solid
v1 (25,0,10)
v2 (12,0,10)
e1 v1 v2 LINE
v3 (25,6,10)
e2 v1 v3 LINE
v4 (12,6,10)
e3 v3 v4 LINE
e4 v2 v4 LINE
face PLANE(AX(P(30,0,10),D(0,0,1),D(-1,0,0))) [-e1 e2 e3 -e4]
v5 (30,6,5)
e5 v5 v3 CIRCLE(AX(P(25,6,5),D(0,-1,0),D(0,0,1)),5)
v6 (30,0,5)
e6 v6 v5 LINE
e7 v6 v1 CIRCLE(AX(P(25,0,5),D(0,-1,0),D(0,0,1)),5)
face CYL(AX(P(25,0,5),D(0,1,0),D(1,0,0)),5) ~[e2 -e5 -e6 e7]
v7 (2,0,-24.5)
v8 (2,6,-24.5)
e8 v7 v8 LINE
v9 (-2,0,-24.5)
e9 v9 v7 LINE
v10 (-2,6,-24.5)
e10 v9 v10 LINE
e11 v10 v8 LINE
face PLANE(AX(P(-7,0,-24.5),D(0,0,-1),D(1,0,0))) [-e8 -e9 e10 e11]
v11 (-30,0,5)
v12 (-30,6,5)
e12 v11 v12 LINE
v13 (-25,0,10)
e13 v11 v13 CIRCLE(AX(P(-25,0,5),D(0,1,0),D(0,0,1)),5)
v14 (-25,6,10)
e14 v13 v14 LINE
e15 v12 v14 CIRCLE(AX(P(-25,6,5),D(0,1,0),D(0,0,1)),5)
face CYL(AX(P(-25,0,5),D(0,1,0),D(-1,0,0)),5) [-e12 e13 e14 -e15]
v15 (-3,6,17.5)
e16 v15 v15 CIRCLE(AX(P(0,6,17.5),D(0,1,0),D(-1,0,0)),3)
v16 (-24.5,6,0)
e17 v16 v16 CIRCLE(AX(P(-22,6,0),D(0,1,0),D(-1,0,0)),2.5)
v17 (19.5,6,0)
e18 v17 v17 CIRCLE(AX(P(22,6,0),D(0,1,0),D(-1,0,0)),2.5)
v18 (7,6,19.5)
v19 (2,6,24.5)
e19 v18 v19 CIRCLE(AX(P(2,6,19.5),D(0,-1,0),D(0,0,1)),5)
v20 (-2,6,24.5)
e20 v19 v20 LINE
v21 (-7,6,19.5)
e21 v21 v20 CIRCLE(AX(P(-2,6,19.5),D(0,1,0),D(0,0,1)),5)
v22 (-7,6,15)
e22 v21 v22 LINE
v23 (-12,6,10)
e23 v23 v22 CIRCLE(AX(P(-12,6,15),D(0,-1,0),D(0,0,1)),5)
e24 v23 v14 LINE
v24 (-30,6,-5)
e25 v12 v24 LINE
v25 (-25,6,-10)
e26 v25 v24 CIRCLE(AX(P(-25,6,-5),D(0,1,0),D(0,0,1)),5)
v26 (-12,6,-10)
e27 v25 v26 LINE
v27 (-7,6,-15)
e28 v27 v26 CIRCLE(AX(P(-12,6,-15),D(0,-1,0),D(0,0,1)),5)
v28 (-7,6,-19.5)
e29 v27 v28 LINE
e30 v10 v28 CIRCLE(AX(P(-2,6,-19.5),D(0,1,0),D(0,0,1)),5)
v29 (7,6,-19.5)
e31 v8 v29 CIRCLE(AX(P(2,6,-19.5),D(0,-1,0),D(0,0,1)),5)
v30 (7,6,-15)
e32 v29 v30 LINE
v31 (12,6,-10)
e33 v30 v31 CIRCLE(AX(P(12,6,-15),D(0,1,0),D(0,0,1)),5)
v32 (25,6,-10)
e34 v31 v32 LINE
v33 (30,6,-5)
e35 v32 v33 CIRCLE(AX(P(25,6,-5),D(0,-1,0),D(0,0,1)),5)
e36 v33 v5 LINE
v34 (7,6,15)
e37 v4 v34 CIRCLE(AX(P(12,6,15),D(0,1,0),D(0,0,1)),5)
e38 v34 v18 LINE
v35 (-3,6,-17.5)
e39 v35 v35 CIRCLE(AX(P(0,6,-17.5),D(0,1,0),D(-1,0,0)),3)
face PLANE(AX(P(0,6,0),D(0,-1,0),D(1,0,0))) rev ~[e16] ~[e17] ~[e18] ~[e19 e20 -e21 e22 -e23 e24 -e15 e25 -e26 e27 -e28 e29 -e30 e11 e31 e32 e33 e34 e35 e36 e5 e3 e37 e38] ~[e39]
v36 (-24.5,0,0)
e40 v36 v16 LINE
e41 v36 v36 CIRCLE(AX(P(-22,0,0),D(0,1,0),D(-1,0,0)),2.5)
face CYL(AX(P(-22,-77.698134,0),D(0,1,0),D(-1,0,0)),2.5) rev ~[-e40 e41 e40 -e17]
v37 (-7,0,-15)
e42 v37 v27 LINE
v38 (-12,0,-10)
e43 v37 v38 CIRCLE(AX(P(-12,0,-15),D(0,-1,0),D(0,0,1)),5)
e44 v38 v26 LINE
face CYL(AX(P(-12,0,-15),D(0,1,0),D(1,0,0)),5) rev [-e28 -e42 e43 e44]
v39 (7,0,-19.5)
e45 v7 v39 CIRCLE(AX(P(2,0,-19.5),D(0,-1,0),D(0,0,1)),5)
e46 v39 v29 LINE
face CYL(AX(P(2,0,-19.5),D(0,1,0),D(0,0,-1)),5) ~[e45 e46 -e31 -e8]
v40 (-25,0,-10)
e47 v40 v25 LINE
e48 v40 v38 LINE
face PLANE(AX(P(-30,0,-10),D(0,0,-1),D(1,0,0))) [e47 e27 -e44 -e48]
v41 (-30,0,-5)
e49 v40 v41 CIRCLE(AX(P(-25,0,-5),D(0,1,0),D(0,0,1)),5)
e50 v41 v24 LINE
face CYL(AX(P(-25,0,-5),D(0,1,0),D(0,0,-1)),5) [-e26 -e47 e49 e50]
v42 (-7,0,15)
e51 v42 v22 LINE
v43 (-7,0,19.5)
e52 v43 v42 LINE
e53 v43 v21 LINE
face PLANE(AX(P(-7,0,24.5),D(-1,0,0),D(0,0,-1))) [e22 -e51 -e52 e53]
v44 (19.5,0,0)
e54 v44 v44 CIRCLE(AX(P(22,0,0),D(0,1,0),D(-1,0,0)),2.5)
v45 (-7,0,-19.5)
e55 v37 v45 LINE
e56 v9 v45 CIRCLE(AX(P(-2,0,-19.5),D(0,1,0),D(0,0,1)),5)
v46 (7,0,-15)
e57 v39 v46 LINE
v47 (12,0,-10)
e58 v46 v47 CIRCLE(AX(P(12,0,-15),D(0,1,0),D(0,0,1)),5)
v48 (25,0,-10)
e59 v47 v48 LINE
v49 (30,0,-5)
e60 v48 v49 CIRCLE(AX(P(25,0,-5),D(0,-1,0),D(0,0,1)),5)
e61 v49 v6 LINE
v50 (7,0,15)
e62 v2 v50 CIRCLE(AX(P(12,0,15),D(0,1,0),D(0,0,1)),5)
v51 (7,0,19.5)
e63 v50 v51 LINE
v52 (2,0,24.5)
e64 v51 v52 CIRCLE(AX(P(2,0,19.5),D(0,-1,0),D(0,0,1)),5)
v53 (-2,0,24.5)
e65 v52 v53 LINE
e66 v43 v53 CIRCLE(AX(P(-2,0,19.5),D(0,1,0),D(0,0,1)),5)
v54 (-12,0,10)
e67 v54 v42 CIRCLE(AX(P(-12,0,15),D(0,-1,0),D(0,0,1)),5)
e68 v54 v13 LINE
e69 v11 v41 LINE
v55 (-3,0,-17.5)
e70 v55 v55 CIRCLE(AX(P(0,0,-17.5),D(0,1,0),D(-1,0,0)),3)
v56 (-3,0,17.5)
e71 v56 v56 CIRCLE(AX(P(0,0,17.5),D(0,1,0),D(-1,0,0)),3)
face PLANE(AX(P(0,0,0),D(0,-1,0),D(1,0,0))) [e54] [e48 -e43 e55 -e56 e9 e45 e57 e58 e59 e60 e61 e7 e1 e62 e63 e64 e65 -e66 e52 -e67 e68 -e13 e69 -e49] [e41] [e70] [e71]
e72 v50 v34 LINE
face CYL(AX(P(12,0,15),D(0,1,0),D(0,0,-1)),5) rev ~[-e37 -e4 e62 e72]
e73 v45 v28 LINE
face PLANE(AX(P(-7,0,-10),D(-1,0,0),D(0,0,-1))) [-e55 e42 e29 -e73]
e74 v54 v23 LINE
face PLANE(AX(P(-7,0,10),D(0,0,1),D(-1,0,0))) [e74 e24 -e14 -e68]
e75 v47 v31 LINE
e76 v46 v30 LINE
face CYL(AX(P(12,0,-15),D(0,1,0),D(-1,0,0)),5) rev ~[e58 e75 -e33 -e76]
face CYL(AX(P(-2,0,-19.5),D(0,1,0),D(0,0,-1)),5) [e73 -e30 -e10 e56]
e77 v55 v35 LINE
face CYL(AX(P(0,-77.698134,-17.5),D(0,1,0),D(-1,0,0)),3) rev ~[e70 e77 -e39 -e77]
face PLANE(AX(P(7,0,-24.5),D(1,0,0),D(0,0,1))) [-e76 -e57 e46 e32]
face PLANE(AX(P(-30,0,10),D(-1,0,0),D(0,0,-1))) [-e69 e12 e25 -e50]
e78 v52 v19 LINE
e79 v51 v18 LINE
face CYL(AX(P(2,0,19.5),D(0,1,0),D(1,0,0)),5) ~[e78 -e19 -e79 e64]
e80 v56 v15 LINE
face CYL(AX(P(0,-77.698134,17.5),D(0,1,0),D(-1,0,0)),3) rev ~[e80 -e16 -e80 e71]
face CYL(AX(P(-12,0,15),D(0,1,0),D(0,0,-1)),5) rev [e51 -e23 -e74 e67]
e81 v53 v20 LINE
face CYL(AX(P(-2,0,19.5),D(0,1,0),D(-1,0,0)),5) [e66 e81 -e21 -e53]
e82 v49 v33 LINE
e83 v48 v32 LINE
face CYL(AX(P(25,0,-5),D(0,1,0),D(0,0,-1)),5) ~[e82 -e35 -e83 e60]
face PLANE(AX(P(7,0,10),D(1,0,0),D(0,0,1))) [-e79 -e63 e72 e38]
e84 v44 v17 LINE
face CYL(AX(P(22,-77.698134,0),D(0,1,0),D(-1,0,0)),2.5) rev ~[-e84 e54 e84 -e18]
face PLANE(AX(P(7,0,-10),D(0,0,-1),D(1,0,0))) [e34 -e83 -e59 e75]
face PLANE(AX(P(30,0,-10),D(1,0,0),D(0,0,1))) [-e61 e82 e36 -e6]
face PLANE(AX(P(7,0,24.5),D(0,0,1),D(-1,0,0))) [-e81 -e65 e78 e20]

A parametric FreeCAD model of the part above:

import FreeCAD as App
import Part
import Sketcher
from FreeCAD import Vector
Q = App.Units.Quantity


def edges_at(feature, points):
    """Names of the edges that pass closest to the given points."""
    edges = feature.Shape.Edges
    near = lambda p: min(range(len(edges)), key=lambda i: edges[i].distToShape(Part.Vertex(*p))[0])
    return sorted({f"Edge{near(p) + 1}" for p in points})

doc = App.newDocument("Part")
body = doc.addObject("PartDesign::Body", "Body")

# Sketch on XZ plane
sketch1 = doc.addObject("Sketcher::SketchObject", "Sketch")
body.addObject(sketch1)
sketch1.AttachmentSupport = (doc.XZ_Plane, [""])
sketch1.MapMode = "FlatFace"
sketch1.addGeometry(Part.LineSegment(Vector(-7, -24.5, 0), Vector(7, -24.5, 0)), False)
sketch1.addGeometry(Part.LineSegment(Vector(7, -24.5, 0), Vector(7, -10, 0)), False)
sketch1.addGeometry(Part.LineSegment(Vector(7, -10, 0), Vector(30, -10, 0)), False)
sketch1.addGeometry(Part.LineSegment(Vector(30, -10, 0), Vector(30, 10, 0)), False)
sketch1.addGeometry(Part.LineSegment(Vector(30, 10, 0), Vector(7, 10, 0)), False)
sketch1.addGeometry(Part.LineSegment(Vector(7, 10, 0), Vector(7, 24.5, 0)), False)
sketch1.addGeometry(Part.LineSegment(Vector(7, 24.5, 0), Vector(-7, 24.5, 0)), False)
sketch1.addGeometry(Part.LineSegment(Vector(-7, 24.5, 0), Vector(-7, 10, 0)), False)
sketch1.addGeometry(Part.LineSegment(Vector(-7, 10, 0), Vector(-30, 10, 0)), False)
sketch1.addGeometry(Part.LineSegment(Vector(-30, 10, 0), Vector(-30, -10, 0)), False)
sketch1.addGeometry(Part.LineSegment(Vector(-30, -10, 0), Vector(-7, -10, 0)), False)
sketch1.addGeometry(Part.LineSegment(Vector(-7, -10, 0), Vector(-7, -24.5, 0)), False)
sketch1.addConstraint(Sketcher.Constraint("Coincident", 0, 2, 1, 1))
sketch1.addConstraint(Sketcher.Constraint("Coincident", 1, 2, 2, 1))
sketch1.addConstraint(Sketcher.Constraint("Coincident", 2, 2, 3, 1))
sketch1.addConstraint(Sketcher.Constraint("Coincident", 3, 2, 4, 1))
sketch1.addConstraint(Sketcher.Constraint("Coincident", 4, 2, 5, 1))
sketch1.addConstraint(Sketcher.Constraint("Coincident", 5, 2, 6, 1))
sketch1.addConstraint(Sketcher.Constraint("Coincident", 6, 2, 7, 1))
sketch1.addConstraint(Sketcher.Constraint("Coincident", 7, 2, 8, 1))
sketch1.addConstraint(Sketcher.Constraint("Coincident", 8, 2, 9, 1))
sketch1.addConstraint(Sketcher.Constraint("Coincident", 9, 2, 10, 1))
sketch1.addConstraint(Sketcher.Constraint("Coincident", 10, 2, 11, 1))
sketch1.addConstraint(Sketcher.Constraint("Coincident", 11, 2, 0, 1))
sketch1.addConstraint(Sketcher.Constraint("Horizontal", 0))
sketch1.addConstraint(Sketcher.Constraint("Vertical", 1))
sketch1.addConstraint(Sketcher.Constraint("Horizontal", 2))
sketch1.addConstraint(Sketcher.Constraint("Vertical", 3))
sketch1.addConstraint(Sketcher.Constraint("Horizontal", 4))
sketch1.addConstraint(Sketcher.Constraint("Vertical", 5))
sketch1.addConstraint(Sketcher.Constraint("Horizontal", 6))
sketch1.addConstraint(Sketcher.Constraint("Vertical", 7))
sketch1.addConstraint(Sketcher.Constraint("Horizontal", 8))
sketch1.addConstraint(Sketcher.Constraint("Vertical", 9))
sketch1.addConstraint(Sketcher.Constraint("Horizontal", 10))
sketch1.addConstraint(Sketcher.Constraint("Vertical", 11))
sketch1.addConstraint(Sketcher.Constraint("Symmetric", 0, 2, 6, 2, -1, 1))
sketch1.addConstraint(Sketcher.Constraint("Symmetric", 2, 2, 8, 2, -1, 1))
sketch1.addConstraint(Sketcher.Constraint("Symmetric", 4, 2, 10, 2, -1, 1))
sketch1.addConstraint(Sketcher.Constraint("Symmetric", 4, 2, 7, 2, -2))
sketch1.addConstraint(Sketcher.Constraint("DistanceX", 0, 1, 0, 2, Q("14 mm")))
sketch1.addConstraint(Sketcher.Constraint("DistanceX", 2, 1, 2, 2, Q("23 mm")))
sketch1.addConstraint(Sketcher.Constraint("DistanceY", 3, 1, 3, 2, Q("20 mm")))
sketch1.addConstraint(Sketcher.Constraint("DistanceY", 1, 1, 1, 2, Q("14.5 mm")))
pad1 = doc.addObject("PartDesign::Pad", "Pad")
body.addObject(pad1)
pad1.Profile = sketch1
pad1.Length = 6
pad1.Reversed = True

# Sketch on XZ plane
sketch2 = doc.addObject("Sketcher::SketchObject", "Sketch001")
body.addObject(sketch2)
sketch2.AttachmentSupport = (doc.XZ_Plane, [""])
sketch2.MapMode = "FlatFace"
sketch2.addGeometry(Part.Circle(Vector(0, 17.5, 0), Vector(0, 0, 1), 3), False)
sketch2.addGeometry(Part.Circle(Vector(0, -17.5, 0), Vector(0, 0, 1), 3), False)
sketch2.addConstraint(Sketcher.Constraint("Equal", 0, 1))
sketch2.addConstraint(Sketcher.Constraint("Symmetric", 0, 3, 1, 3, -1, 1))
sketch2.addConstraint(Sketcher.Constraint("PointOnObject", 0, 3, -2))
sketch2.addConstraint(Sketcher.Constraint("Diameter", 0, Q("6 mm")))
sketch2.addConstraint(Sketcher.Constraint("DistanceY", 1, 3, 0, 3, Q("35 mm")))
doc.recompute()
hole = doc.addObject("PartDesign::Hole", "Hole")
body.addObject(hole)
hole.Profile = sketch2
hole.ThreadType = "None"
hole.Diameter = 6
hole.DepthType = "ThroughAll"

# Sketch on XZ plane
sketch3 = doc.addObject("Sketcher::SketchObject", "Sketch002")
body.addObject(sketch3)
sketch3.AttachmentSupport = (doc.XZ_Plane, [""])
sketch3.MapMode = "FlatFace"
sketch3.addGeometry(Part.Circle(Vector(22, 0, 0), Vector(0, 0, 1), 2.5), False)
sketch3.addGeometry(Part.Circle(Vector(-22, 0, 0), Vector(0, 0, 1), 2.5), False)
sketch3.addConstraint(Sketcher.Constraint("Equal", 0, 1))
sketch3.addConstraint(Sketcher.Constraint("Symmetric", 0, 3, 1, 3, -1, 1))
sketch3.addConstraint(Sketcher.Constraint("PointOnObject", 0, 3, -1))
sketch3.addConstraint(Sketcher.Constraint("Diameter", 0, Q("5 mm")))
sketch3.addConstraint(Sketcher.Constraint("DistanceX", -1, 1, 0, 3, Q("22 mm")))
doc.recompute()
hole2 = doc.addObject("PartDesign::Hole", "Hole001")
body.addObject(hole2)
hole2.Profile = sketch3
hole2.ThreadType = "None"
hole2.Diameter = 5
hole2.DepthType = "ThroughAll"
doc.recompute()

fillet = doc.addObject("PartDesign::Fillet", "Fillet")
body.addObject(fillet)
fillet.Base = (hole2, edges_at(hole2, [
    (7, 3, 24.5),
    (7, 3, 10),
    (30, 3, 10),
    (30, 3, -10),
    (7, 3, -24.5),
    (7, 3, -10),
    (-7, 3, -24.5),
    (-30, 3, -10),
    (-7, 3, -10),
    (-30, 3, 10),
    (-7, 3, 10),
    (-7, 3, 24.5),
]))
fillet.Radius = 5

doc.recompute()
